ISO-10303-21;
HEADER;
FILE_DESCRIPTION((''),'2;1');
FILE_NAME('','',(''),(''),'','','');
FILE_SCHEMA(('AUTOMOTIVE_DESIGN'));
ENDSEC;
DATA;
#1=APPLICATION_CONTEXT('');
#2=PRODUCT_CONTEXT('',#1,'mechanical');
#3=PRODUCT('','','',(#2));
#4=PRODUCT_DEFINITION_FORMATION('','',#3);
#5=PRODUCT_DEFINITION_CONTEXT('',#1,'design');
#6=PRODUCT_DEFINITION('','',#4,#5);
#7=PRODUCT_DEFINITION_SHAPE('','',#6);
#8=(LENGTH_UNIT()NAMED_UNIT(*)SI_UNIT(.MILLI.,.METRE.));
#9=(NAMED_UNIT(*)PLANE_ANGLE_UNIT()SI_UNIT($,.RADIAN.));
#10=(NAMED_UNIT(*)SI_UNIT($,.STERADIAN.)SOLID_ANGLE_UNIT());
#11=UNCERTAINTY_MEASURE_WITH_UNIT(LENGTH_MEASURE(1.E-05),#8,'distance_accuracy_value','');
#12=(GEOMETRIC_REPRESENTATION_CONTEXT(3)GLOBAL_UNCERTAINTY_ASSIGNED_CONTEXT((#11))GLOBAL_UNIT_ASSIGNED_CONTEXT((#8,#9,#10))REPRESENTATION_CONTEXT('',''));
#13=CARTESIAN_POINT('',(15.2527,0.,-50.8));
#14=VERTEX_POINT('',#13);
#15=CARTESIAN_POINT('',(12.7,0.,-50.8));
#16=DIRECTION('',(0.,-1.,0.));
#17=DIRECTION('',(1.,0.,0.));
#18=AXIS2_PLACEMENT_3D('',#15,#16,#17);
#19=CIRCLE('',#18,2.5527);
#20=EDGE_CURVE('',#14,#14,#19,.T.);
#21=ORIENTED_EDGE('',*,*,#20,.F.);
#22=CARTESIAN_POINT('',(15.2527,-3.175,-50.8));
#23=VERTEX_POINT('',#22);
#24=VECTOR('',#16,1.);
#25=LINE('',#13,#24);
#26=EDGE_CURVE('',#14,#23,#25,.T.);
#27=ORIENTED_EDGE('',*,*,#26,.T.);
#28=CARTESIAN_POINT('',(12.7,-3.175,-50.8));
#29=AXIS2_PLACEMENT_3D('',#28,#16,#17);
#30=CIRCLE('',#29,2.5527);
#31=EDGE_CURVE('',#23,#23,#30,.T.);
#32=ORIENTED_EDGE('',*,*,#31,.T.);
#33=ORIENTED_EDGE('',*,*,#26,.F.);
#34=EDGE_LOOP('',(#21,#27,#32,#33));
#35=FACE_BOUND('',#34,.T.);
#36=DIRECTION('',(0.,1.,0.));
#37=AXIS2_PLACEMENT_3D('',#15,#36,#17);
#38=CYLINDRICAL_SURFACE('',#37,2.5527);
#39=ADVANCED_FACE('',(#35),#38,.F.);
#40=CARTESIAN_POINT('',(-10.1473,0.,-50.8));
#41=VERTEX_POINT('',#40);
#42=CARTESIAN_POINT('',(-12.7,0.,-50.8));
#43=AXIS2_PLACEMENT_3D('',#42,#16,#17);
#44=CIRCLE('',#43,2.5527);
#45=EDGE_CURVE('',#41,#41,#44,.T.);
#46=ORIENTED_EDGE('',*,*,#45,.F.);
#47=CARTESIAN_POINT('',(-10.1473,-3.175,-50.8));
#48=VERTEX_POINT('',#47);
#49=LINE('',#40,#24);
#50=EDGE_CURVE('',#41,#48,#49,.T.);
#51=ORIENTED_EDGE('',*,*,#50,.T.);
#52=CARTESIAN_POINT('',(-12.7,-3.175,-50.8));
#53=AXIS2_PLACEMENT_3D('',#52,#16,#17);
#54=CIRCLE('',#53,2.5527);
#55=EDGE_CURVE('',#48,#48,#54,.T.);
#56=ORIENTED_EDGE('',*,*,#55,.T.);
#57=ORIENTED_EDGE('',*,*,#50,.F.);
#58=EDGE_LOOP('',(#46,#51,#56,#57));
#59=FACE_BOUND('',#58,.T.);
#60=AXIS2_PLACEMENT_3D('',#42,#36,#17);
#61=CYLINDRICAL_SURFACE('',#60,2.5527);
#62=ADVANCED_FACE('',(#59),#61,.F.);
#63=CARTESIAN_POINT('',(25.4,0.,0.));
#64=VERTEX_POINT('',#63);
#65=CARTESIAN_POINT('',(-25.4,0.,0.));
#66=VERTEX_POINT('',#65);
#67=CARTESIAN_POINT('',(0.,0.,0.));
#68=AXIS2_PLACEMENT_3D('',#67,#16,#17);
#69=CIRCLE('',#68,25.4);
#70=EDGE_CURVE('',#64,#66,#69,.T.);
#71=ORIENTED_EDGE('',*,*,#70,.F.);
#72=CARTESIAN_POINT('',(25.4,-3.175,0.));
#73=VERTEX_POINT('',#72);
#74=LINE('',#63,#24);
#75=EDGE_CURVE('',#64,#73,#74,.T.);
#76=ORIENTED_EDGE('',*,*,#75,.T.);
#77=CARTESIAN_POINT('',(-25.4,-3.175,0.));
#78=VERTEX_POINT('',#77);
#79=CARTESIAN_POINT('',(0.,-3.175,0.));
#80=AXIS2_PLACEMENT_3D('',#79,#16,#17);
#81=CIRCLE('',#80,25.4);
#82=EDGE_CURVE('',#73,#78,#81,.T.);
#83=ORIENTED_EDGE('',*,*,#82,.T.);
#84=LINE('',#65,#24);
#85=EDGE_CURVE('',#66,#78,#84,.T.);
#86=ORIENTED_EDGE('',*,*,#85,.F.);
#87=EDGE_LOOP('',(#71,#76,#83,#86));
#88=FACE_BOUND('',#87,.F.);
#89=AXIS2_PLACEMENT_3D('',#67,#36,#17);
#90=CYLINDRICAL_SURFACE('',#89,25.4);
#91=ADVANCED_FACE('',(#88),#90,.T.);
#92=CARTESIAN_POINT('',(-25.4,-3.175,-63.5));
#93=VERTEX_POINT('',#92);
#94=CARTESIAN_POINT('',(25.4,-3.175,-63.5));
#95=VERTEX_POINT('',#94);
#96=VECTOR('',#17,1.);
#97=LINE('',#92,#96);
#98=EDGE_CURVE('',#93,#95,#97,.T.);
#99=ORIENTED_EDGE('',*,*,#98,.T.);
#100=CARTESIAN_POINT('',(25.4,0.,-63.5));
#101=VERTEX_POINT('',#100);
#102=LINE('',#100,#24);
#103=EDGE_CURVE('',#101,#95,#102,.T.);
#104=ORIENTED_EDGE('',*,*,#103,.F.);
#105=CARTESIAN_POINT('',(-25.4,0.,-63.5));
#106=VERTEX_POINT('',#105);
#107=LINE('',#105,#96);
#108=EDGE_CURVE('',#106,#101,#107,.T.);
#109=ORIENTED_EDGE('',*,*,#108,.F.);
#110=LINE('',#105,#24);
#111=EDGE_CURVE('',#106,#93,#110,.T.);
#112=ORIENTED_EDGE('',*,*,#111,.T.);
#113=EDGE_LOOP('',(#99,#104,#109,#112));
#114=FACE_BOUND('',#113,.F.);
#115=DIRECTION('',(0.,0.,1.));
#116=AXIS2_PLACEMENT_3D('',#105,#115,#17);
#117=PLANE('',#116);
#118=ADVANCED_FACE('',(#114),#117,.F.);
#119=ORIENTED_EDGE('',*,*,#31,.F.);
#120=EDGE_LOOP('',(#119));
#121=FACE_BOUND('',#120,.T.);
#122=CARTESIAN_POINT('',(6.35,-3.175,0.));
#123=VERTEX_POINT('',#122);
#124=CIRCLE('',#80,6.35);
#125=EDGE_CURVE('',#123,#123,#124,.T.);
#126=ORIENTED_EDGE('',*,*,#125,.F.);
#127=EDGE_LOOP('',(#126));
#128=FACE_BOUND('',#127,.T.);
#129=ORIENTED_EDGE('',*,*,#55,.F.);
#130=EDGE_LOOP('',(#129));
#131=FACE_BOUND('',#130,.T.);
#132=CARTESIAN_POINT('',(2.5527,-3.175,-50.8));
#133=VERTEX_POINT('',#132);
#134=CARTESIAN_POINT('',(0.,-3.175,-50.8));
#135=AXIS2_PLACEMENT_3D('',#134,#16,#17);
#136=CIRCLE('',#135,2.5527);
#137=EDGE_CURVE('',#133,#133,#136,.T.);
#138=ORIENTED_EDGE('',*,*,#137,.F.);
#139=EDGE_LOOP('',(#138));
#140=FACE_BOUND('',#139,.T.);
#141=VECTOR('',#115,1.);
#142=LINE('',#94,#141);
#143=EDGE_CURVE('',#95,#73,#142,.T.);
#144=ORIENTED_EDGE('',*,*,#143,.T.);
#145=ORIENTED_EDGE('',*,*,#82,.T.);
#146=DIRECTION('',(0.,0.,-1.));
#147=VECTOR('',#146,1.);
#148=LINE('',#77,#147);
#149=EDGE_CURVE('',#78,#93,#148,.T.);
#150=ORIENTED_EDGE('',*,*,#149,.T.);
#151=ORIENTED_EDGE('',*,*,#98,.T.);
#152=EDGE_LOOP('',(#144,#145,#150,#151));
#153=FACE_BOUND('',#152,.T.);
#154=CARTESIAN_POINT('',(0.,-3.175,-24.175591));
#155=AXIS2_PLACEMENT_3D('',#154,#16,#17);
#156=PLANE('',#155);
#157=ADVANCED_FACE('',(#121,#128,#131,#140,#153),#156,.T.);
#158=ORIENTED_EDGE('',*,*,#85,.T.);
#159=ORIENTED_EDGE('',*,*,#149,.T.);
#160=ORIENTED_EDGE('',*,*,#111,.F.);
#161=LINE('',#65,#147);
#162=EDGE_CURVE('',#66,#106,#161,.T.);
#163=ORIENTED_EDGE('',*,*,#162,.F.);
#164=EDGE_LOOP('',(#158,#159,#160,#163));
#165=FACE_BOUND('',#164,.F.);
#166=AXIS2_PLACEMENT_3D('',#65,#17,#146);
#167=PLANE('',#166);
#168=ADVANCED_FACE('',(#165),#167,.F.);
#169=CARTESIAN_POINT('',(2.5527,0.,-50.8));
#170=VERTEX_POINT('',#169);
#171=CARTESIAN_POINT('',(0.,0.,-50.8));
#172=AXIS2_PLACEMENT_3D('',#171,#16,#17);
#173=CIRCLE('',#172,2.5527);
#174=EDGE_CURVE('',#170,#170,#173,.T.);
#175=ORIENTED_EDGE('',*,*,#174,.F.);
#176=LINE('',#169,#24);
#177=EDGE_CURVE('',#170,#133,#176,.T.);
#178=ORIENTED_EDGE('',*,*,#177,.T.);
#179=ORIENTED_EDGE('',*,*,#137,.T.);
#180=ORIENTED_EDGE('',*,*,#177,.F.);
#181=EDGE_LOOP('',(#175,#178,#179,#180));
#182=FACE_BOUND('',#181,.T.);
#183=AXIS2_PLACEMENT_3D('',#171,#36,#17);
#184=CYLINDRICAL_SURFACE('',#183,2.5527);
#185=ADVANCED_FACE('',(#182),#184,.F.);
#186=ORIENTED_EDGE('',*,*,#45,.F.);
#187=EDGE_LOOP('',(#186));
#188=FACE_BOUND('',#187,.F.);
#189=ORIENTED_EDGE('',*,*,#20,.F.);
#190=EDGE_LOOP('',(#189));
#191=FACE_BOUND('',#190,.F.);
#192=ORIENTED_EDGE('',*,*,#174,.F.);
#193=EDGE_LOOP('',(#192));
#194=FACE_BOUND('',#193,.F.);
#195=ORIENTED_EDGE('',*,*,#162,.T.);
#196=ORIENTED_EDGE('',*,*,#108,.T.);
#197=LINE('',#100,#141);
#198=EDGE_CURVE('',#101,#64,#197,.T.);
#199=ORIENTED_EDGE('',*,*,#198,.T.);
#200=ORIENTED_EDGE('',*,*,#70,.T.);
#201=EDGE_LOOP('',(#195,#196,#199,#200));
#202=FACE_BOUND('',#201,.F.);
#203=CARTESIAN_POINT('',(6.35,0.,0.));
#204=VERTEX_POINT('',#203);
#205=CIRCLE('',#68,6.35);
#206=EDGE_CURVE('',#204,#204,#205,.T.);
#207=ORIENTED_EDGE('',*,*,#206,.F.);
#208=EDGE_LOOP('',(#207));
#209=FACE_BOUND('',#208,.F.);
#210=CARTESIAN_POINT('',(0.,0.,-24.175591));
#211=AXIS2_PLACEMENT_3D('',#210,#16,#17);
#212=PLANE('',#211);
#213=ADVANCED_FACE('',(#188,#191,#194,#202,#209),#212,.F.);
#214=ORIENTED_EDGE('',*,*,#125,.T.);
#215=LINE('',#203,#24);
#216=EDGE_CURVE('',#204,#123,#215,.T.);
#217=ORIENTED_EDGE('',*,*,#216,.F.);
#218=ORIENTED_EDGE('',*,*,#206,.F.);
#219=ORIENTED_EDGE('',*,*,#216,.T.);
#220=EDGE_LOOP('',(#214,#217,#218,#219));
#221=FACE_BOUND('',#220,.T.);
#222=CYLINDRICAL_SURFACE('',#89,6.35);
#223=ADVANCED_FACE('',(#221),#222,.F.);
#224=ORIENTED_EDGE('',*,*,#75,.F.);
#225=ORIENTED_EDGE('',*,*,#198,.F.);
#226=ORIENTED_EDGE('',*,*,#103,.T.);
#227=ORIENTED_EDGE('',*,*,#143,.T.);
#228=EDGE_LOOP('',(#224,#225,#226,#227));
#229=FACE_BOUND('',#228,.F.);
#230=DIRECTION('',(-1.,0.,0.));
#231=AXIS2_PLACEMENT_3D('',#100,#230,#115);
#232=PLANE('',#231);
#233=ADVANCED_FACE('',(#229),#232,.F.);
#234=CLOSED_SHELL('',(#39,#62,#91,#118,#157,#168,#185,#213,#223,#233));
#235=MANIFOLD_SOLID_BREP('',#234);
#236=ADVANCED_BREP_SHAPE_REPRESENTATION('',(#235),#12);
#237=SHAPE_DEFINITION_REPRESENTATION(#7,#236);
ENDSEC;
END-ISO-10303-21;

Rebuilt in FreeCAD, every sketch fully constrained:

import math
import FreeCAD as App
import Part
import Sketcher
Q = App.Units.Quantity

doc = App.newDocument("Part")
body = doc.addObject("PartDesign::Body", "Body")

# Sketch on XZ plane
sketch1 = body.newObject("Sketcher::SketchObject", "Sketch")
sketch1.AttachmentSupport = (doc.getObject("XZ_Plane"), [""])
sketch1.MapMode = "FlatFace"
sketch1.addGeometry(Part.LineSegment(App.Vector(25.4, -63.5, 0), App.Vector(25.4, 0, 0)), False)
sketch1.addGeometry(Part.ArcOfCircle(Part.Circle(App.Vector(0, 0, 0), App.Vector(0, 0, 1), 25.4), math.radians(0), math.radians(180)), False)
sketch1.addGeometry(Part.LineSegment(App.Vector(-25.4, 0, 0), App.Vector(-25.4, -63.5, 0)), False)
sketch1.addGeometry(Part.LineSegment(App.Vector(-25.4, -63.5, 0), App.Vector(25.4, -63.5, 0)), False)
sketch1.addGeometry(Part.Circle(App.Vector(-12.7, -50.8, 0), App.Vector(0, 0, 1), 2.5527), False)
sketch1.addGeometry(Part.Circle(App.Vector(0, -50.8, 0), App.Vector(0, 0, 1), 2.5527), False)
sketch1.addGeometry(Part.Circle(App.Vector(12.7, -50.8, 0), App.Vector(0, 0, 1), 2.5527), False)
sketch1.addGeometry(Part.Circle(App.Vector(0, 0, 0), App.Vector(0, 0, 1), 6.35), False)
sketch1.addConstraint(Sketcher.Constraint("Tangent", 0, 2, 1, 1))
sketch1.addConstraint(Sketcher.Constraint("Tangent", 1, 2, 2, 1))
sketch1.addConstraint(Sketcher.Constraint("Coincident", 2, 2, 3, 1))
sketch1.addConstraint(Sketcher.Constraint("Coincident", 3, 2, 0, 1))
sketch1.addConstraint(Sketcher.Constraint("Vertical", 0))
sketch1.addConstraint(Sketcher.Constraint("Vertical", 2))
sketch1.addConstraint(Sketcher.Constraint("Horizontal", 3))
sketch1.addConstraint(Sketcher.Constraint("Coincident", 1, 3, -1, 1))
sketch1.addConstraint(Sketcher.Constraint("Coincident", 7, 3, -1, 1))
sketch1.addConstraint(Sketcher.Constraint("Equal", 4, 5))
sketch1.addConstraint(Sketcher.Constraint("Equal", 5, 6))
sketch1.addConstraint(Sketcher.Constraint("Symmetric", 4, 3, 6, 3, -2))
sketch1.addConstraint(Sketcher.Constraint("PointOnObject", 5, 3, -2))
sketch1.addConstraint(Sketcher.Constraint("Horizontal", 4, 3, 5, 3))
sketch1.addConstraint(Sketcher.Constraint("Radius", 1, Q("1 in")))
sketch1.addConstraint(Sketcher.Constraint("Diameter", 7, Q("0.5 in")))
sketch1.addConstraint(Sketcher.Constraint("Diameter", 4, Q("0.201 in")))
sketch1.addConstraint(Sketcher.Constraint("DistanceY", 0, 1, 0, 2, Q("2.5 in")))
sketch1.addConstraint(Sketcher.Constraint("DistanceY", 4, 3, -1, 1, Q("2 in")))
sketch1.addConstraint(Sketcher.Constraint("DistanceX", 4, 3, 6, 3, Q("1 in")))
pad1 = body.newObject("PartDesign::Pad", "Pad")
pad1.Profile = sketch1
pad1.Length = Q("0.125 in")

doc.recompute()
